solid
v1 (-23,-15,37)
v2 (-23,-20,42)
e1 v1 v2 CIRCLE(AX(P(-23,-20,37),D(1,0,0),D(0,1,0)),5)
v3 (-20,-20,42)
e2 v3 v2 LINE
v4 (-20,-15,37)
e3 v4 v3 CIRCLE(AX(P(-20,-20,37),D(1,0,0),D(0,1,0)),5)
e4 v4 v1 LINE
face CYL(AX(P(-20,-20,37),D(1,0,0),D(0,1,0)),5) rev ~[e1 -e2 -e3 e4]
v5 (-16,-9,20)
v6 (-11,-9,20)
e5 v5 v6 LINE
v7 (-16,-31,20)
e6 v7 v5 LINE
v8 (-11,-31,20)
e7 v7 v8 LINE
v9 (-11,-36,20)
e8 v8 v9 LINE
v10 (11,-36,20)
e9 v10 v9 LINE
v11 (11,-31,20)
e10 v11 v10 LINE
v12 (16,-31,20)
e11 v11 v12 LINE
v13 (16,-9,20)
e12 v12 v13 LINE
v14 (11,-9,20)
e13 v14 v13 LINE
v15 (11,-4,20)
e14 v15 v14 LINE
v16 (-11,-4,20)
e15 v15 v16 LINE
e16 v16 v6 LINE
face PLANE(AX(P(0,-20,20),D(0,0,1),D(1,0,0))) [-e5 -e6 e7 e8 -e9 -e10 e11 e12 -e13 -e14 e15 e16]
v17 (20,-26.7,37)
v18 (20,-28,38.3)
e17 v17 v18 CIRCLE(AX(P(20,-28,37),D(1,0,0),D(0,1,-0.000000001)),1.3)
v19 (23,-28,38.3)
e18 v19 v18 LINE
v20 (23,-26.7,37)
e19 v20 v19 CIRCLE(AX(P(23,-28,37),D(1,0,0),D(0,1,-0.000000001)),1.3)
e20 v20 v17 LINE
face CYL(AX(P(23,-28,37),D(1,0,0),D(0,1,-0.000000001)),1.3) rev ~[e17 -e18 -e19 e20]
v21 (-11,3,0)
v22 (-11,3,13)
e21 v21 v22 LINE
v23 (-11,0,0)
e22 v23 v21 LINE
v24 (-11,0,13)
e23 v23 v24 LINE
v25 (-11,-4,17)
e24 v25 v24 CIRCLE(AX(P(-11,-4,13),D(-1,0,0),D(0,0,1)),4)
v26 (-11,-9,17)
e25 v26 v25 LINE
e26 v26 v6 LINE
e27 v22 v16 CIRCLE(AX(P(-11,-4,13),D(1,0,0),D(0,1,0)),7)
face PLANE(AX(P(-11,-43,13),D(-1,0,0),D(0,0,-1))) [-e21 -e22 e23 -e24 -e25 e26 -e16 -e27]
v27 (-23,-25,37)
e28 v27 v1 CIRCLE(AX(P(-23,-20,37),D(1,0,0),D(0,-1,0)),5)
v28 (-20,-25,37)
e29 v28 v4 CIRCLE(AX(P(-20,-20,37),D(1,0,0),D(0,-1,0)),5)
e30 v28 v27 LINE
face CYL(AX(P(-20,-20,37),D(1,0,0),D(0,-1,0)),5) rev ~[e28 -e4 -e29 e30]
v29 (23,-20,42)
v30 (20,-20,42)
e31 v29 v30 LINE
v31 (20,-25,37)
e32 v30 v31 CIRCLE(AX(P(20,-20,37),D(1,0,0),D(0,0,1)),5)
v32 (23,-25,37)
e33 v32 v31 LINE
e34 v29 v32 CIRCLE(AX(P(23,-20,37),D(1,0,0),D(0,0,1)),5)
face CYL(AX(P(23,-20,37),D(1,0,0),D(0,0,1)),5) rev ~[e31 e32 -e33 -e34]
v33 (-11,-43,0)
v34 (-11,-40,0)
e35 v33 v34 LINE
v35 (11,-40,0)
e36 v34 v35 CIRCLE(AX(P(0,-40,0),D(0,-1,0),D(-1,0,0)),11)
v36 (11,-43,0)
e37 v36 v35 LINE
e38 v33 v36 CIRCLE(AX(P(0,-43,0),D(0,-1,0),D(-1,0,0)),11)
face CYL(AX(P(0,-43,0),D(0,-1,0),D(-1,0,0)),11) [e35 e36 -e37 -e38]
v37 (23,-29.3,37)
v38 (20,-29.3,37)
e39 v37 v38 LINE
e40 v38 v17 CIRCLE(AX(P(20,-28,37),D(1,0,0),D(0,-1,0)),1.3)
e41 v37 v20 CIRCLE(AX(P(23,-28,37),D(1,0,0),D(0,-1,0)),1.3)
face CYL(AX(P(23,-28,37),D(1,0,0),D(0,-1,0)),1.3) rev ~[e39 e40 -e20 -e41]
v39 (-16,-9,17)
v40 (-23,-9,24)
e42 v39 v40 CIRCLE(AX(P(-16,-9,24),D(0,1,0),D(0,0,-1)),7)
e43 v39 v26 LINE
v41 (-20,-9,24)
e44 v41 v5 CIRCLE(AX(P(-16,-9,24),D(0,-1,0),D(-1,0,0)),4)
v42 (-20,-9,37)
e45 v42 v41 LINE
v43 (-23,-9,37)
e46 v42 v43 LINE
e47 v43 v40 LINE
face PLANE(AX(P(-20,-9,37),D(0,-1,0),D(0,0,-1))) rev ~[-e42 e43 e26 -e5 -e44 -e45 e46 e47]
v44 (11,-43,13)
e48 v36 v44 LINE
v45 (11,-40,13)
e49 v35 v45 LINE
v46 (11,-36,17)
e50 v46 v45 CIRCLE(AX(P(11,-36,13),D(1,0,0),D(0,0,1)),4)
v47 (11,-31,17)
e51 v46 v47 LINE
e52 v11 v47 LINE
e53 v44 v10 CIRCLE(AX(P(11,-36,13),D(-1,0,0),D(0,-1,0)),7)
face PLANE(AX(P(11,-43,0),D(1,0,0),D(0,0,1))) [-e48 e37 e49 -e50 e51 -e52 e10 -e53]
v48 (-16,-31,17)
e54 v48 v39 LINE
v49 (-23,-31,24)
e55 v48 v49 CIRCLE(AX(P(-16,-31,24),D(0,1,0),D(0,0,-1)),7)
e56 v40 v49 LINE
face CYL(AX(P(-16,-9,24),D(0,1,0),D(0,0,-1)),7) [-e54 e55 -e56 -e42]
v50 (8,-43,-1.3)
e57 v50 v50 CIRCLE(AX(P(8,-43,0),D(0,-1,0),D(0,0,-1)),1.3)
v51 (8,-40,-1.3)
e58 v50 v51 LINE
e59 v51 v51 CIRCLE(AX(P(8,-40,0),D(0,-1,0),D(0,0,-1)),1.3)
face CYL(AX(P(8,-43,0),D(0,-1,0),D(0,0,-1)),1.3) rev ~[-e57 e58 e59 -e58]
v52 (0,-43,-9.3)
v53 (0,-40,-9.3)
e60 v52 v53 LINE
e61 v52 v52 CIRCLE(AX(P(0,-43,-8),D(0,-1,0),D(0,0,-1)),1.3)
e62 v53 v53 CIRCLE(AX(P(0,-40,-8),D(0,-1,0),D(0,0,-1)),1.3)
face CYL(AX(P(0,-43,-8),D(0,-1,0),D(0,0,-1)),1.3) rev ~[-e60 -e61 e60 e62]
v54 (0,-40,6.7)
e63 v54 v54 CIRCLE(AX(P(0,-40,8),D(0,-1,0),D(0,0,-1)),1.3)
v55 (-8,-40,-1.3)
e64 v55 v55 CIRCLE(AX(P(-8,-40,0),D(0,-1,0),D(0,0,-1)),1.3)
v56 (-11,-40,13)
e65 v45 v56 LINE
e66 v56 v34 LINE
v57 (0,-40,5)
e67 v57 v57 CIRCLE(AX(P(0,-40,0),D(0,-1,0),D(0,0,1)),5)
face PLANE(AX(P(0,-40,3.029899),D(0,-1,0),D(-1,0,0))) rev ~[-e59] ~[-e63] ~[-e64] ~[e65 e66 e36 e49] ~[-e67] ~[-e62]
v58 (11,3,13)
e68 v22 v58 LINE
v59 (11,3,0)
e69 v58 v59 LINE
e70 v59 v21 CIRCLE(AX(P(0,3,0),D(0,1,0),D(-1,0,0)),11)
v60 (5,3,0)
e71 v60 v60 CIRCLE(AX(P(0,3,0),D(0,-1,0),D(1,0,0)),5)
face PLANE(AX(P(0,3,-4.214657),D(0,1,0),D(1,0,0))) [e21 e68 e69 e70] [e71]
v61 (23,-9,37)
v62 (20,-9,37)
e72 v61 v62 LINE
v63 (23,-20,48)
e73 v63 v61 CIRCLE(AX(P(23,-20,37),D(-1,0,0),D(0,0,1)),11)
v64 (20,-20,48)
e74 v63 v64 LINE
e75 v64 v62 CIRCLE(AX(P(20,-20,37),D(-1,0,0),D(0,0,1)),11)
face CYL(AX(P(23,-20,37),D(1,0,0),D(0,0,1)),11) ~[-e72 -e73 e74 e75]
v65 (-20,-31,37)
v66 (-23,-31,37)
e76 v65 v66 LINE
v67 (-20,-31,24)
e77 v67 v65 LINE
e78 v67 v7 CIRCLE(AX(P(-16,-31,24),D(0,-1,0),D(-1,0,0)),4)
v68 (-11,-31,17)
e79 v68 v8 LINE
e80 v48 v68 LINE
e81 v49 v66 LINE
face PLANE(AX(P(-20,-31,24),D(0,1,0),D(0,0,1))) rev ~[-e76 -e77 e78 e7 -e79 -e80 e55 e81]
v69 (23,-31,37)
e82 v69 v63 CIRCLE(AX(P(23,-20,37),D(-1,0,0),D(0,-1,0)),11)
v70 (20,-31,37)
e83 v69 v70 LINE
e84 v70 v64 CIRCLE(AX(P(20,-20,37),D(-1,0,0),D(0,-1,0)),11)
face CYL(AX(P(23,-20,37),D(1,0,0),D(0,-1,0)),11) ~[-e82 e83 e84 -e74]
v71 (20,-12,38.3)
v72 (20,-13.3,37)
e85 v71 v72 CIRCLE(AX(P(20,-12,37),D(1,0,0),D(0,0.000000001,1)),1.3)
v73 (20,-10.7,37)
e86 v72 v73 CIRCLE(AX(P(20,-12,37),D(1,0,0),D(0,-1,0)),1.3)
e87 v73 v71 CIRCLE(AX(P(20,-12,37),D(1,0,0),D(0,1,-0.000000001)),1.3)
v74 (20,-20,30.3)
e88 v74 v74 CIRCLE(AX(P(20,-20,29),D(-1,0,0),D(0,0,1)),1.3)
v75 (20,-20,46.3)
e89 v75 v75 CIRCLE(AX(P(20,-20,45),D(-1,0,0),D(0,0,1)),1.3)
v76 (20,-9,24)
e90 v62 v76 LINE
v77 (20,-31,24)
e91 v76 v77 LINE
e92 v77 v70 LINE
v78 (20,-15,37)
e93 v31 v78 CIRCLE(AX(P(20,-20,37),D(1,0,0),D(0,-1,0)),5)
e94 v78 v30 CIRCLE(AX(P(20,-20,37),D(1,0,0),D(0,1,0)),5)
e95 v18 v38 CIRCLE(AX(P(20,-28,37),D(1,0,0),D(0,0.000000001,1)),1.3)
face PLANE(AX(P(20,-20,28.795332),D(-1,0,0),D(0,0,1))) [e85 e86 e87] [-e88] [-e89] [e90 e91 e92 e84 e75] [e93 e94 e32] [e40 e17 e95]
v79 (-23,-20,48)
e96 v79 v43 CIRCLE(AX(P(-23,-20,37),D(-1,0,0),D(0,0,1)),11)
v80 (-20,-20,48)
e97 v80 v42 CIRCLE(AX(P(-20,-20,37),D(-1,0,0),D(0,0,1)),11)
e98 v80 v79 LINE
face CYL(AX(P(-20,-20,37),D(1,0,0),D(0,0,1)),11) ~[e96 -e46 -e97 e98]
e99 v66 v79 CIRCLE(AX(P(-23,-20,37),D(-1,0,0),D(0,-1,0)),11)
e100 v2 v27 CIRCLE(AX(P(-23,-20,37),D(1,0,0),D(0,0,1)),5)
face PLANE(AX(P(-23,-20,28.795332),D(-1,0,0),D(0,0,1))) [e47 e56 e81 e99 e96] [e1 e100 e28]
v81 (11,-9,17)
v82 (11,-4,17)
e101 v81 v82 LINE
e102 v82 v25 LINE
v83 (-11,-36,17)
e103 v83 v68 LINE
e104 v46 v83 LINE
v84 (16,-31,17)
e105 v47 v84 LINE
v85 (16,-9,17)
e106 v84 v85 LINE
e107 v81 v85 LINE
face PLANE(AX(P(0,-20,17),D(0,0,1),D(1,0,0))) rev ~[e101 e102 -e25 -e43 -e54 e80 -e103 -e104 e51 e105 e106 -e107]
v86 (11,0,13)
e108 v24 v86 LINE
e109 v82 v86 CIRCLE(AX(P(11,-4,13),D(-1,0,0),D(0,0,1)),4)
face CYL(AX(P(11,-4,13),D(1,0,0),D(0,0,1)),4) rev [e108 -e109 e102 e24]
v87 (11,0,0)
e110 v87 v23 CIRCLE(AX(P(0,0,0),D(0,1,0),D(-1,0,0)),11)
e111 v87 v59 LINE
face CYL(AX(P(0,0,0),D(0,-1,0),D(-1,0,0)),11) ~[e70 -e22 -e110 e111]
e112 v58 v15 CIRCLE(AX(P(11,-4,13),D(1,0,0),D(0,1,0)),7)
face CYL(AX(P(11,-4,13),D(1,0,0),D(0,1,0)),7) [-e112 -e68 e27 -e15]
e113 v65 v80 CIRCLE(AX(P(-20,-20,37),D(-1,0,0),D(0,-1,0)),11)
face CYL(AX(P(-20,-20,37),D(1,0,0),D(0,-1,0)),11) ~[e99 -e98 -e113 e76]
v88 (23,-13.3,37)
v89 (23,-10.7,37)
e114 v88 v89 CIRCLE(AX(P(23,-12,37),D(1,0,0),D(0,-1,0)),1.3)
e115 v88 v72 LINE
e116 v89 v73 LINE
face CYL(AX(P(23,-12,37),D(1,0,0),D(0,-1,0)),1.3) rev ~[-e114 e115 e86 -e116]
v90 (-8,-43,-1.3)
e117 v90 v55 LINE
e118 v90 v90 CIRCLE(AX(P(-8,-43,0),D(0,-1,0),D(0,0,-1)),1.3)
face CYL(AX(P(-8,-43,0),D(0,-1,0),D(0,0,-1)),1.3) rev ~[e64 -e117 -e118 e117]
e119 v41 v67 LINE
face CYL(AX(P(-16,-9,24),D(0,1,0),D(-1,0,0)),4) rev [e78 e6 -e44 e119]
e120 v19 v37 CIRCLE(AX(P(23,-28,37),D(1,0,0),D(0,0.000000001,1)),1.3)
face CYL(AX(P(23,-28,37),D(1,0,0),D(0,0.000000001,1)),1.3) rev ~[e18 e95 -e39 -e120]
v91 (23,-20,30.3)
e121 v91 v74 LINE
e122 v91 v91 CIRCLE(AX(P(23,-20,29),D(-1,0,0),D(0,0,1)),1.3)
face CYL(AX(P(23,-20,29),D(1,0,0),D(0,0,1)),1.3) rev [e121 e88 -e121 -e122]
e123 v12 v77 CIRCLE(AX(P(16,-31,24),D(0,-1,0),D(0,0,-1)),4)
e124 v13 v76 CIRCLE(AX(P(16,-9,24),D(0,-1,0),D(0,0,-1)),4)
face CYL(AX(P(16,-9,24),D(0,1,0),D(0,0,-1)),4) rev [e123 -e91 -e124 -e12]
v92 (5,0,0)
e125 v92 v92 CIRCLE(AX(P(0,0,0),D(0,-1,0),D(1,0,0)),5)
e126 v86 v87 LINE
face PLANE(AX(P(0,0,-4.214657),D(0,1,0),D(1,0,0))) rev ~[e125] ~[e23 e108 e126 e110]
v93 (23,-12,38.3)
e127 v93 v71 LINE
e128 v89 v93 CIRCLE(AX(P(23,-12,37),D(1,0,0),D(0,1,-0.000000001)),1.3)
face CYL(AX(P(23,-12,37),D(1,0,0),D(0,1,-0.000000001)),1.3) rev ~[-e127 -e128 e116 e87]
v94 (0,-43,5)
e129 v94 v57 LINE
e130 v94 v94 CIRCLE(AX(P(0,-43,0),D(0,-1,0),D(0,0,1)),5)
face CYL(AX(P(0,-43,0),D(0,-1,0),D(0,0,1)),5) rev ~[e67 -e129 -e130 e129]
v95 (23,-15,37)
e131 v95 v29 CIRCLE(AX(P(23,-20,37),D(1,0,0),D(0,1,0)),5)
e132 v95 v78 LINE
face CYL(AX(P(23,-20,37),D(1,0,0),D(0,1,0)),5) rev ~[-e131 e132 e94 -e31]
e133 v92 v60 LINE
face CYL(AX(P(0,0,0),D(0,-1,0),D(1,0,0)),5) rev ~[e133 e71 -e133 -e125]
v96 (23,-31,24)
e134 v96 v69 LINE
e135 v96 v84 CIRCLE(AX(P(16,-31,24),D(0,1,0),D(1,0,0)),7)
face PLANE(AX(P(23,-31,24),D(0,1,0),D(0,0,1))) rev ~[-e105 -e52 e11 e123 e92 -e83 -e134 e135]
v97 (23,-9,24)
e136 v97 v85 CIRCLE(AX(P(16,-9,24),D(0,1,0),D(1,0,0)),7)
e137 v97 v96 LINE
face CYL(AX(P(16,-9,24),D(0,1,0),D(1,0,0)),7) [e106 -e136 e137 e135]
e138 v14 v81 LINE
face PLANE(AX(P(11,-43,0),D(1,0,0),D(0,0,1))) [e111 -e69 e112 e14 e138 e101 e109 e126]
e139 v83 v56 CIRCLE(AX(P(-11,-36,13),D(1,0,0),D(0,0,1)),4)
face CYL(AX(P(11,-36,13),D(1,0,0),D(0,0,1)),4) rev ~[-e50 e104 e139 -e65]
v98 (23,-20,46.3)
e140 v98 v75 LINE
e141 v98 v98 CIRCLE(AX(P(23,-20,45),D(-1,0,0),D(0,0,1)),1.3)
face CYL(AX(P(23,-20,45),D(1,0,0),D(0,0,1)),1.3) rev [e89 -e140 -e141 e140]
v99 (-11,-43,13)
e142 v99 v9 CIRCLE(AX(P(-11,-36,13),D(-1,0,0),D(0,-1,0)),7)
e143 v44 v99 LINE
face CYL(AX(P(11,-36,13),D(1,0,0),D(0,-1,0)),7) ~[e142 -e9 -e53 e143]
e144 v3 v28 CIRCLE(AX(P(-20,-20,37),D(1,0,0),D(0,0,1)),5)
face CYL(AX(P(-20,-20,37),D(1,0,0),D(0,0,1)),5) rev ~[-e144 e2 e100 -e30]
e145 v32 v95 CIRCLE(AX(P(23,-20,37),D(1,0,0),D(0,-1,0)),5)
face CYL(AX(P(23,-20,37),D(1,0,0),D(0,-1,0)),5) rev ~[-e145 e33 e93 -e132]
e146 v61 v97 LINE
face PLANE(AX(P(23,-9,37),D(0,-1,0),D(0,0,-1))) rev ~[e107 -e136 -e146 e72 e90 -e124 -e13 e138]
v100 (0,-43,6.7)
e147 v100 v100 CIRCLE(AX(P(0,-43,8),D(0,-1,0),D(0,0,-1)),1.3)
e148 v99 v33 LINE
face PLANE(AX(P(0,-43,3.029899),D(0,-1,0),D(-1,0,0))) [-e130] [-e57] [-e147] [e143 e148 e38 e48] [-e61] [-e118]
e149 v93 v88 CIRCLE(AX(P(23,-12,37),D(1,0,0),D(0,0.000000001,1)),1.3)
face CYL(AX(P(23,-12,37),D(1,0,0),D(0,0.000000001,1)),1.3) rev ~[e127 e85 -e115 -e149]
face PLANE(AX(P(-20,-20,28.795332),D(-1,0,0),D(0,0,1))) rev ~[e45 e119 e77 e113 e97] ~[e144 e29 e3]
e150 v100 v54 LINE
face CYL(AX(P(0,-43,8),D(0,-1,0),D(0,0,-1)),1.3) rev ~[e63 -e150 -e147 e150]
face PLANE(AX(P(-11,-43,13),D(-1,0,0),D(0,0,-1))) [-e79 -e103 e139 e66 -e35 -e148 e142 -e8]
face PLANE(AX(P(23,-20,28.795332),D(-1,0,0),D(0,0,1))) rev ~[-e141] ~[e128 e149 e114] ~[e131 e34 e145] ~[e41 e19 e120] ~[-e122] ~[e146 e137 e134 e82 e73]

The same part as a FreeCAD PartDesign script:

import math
import FreeCAD as App
import Part
import Sketcher

doc = App.newDocument("Part")
body = doc.addObject("PartDesign::Body", "Body")

sketch1 = body.newObject("Sketcher::SketchObject", "Sketch")
sketch1.AttachmentSupport = (doc.getObject("XZ_Plane"), [""])
sketch1.MapMode = "FlatFace"
sketch1.addGeometry(Part.ArcOfCircle(Part.Circle(App.Vector(0, 0, 0), App.Vector(0, 0, 1), 11), math.radians(180), math.radians(360)), False)
sketch1.addGeometry(Part.LineSegment(App.Vector(-11, 0, 0), App.Vector(-11, 13, 0)), False)
sketch1.addGeometry(Part.LineSegment(App.Vector(-11, 13, 0), App.Vector(11, 13, 0)), False)
sketch1.addGeometry(Part.LineSegment(App.Vector(11, 13, 0), App.Vector(11, 0, 0)), False)
sketch1.addGeometry(Part.Circle(App.Vector(0, 0, 0), App.Vector(0, 0, 1), 5), False)
sketch1.addConstraint(Sketcher.Constraint("Tangent", 0, 1, 1, 1))
sketch1.addConstraint(Sketcher.Constraint("Coincident", 1, 2, 2, 1))
sketch1.addConstraint(Sketcher.Constraint("Coincident", 2, 2, 3, 1))
sketch1.addConstraint(Sketcher.Constraint("Tangent", 3, 2, 0, 2))
sketch1.addConstraint(Sketcher.Constraint("Vertical", 1))
sketch1.addConstraint(Sketcher.Constraint("Horizontal", 2))
sketch1.addConstraint(Sketcher.Constraint("Vertical", 3))
sketch1.addConstraint(Sketcher.Constraint("Coincident", 0, 3, -1, 1))
sketch1.addConstraint(Sketcher.Constraint("Coincident", 4, 3, -1, 1))
sketch1.addConstraint(Sketcher.Constraint("Diameter", 4, 10.0))
sketch1.addConstraint(Sketcher.Constraint("Radius", 0, 11.0))
sketch1.addConstraint(Sketcher.Constraint("DistanceY", 1, 1, 1, 2, 13.0))
pad1 = body.newObject("PartDesign::Pad", "Pad")
pad1.Profile = sketch1
pad1.Length = 3
pad1.Reversed = True

sketch2 = body.newObject("Sketcher::SketchObject", "Sketch001")
sketch2.AttachmentSupport = (doc.getObject("YZ_Plane"), [""])
sketch2.MapMode = "FlatFace"
sketch2.AttachmentOffset = App.Placement(App.Vector(0, 0, 11), App.Rotation())
sketch2.addGeometry(Part.LineSegment(App.Vector(0, 13, 0), App.Vector(3, 13, 0)), False)
sketch2.addGeometry(Part.ArcOfCircle(Part.Circle(App.Vector(-4, 13, 0), App.Vector(0, 0, 1), 7), math.radians(0), math.radians(90)), False)
sketch2.addGeometry(Part.LineSegment(App.Vector(-4, 20, 0), App.Vector(-36, 20, 0)), False)
sketch2.addGeometry(Part.LineSegment(App.Vector(-36, 20, 0), App.Vector(-36, 17, 0)), False)
sketch2.addGeometry(Part.LineSegment(App.Vector(-36, 17, 0), App.Vector(-4, 17, 0)), False)
sketch2.addGeometry(Part.ArcOfCircle(Part.Circle(App.Vector(-4, 13, 0), App.Vector(0, 0, 1), 4), math.radians(0), math.radians(90)), False)
sketch2.addConstraint(Sketcher.Constraint("Coincident", 0, 2, 1, 1))
sketch2.addConstraint(Sketcher.Constraint("Tangent", 1, 2, 2, 1))
sketch2.addConstraint(Sketcher.Constraint("Coincident", 2, 2, 3, 1))
sketch2.addConstraint(Sketcher.Constraint("Coincident", 3, 2, 4, 1))
sketch2.addConstraint(Sketcher.Constraint("Tangent", 4, 2, 5, 2))
sketch2.addConstraint(Sketcher.Constraint("Coincident", 5, 1, 0, 1))
sketch2.addConstraint(Sketcher.Constraint("Horizontal", 0))
sketch2.addConstraint(Sketcher.Constraint("Horizontal", 2))
sketch2.addConstraint(Sketcher.Constraint("Vertical", 3))
sketch2.addConstraint(Sketcher.Constraint("Horizontal", 4))
sketch2.addConstraint(Sketcher.Constraint("Coincident", 5, 3, 1, 3))
sketch2.addConstraint(Sketcher.Constraint("PointOnObject", 5, 1, -2))
sketch2.addConstraint(Sketcher.Constraint("Horizontal", 5, 3, 0, 2))
sketch2.addConstraint(Sketcher.Constraint("Radius", 1, 7.0))
sketch2.addConstraint(Sketcher.Constraint("Radius", 5, 4.0))
sketch2.addConstraint(Sketcher.Constraint("DistanceX", 2, 2, 2, 1, 32.0))
sketch2.addConstraint(Sketcher.Constraint("DistanceY", -1, 1, 1, 3, 13.0))
pad2 = body.newObject("PartDesign::Pad", "Pad001")
pad2.Profile = sketch2
pad2.Length = 22
pad2.Reversed = True

sketch3 = body.newObject("Sketcher::SketchObject", "Sketch002")
sketch3.AttachmentSupport = (doc.getObject("YZ_Plane"), [""])
sketch3.MapMode = "FlatFace"
sketch3.AttachmentOffset = App.Placement(App.Vector(0, 0, 11), App.Rotation())
sketch3.addGeometry(Part.LineSegment(App.Vector(-36, 17, 0), App.Vector(-36, 20, 0)), False)
sketch3.addGeometry(Part.ArcOfCircle(Part.Circle(App.Vector(-36, 13, 0), App.Vector(0, 0, 1), 7), math.radians(90), math.radians(180)), False)
sketch3.addGeometry(Part.LineSegment(App.Vector(-43, 13, 0), App.Vector(-40, 13, 0)), False)
sketch3.addGeometry(Part.ArcOfCircle(Part.Circle(App.Vector(-36, 13, 0), App.Vector(0, 0, 1), 4), math.radians(90), math.radians(180)), False)
sketch3.addConstraint(Sketcher.Constraint("Coincident", 0, 2, 1, 1))
sketch3.addConstraint(Sketcher.Constraint("Coincident", 1, 2, 2, 1))
sketch3.addConstraint(Sketcher.Constraint("Coincident", 2, 2, 3, 2))
sketch3.addConstraint(Sketcher.Constraint("Coincident", 3, 1, 0, 1))
sketch3.addConstraint(Sketcher.Constraint("Vertical", 0))
sketch3.addConstraint(Sketcher.Constraint("Horizontal", 2))
sketch3.addConstraint(Sketcher.Constraint("Coincident", 3, 3, 1, 3))
sketch3.addConstraint(Sketcher.Constraint("Horizontal", 3, 3, 1, 2))
sketch3.addConstraint(Sketcher.Constraint("Vertical", 3, 3, 0, 2))
sketch3.addConstraint(Sketcher.Constraint("Radius", 1, 7.0))
sketch3.addConstraint(Sketcher.Constraint("Radius", 3, 4.0))
sketch3.addConstraint(Sketcher.Constraint("DistanceX", 1, 3, -1, 1, 36.0))
sketch3.addConstraint(Sketcher.Constraint("DistanceY", -1, 1, 1, 3, 13.0))
pad3 = body.newObject("PartDesign::Pad", "Pad002")
pad3.Profile = sketch3
pad3.Length = 22
pad3.Reversed = True

sketch4 = body.newObject("Sketcher::SketchObject", "Sketch003")
sketch4.AttachmentSupport = (doc.getObject("XZ_Plane"), [""])
sketch4.MapMode = "FlatFace"
sketch4.AttachmentOffset = App.Placement(App.Vector(0, 0, 43), App.Rotation())
sketch4.addGeometry(Part.ArcOfCircle(Part.Circle(App.Vector(0, 0, 0), App.Vector(0, 0, 1), 11), math.radians(180), math.radians(360)), False)
sketch4.addGeometry(Part.LineSegment(App.Vector(11, 0, 0), App.Vector(11, 13, 0)), False)
sketch4.addGeometry(Part.LineSegment(App.Vector(11, 13, 0), App.Vector(-11, 13, 0)), False)
sketch4.addGeometry(Part.LineSegment(App.Vector(-11, 13, 0), App.Vector(-11, 0, 0)), False)
sketch4.addGeometry(Part.Circle(App.Vector(0, 8, 0), App.Vector(0, 0, 1), 1.3), False)
sketch4.addGeometry(Part.Circle(App.Vector(8, 0, 0), App.Vector(0, 0, 1), 1.3), False)
sketch4.addGeometry(Part.Circle(App.Vector(0, 0, 0), App.Vector(0, 0, 1), 5), False)
sketch4.addGeometry(Part.Circle(App.Vector(-8, 0, 0), App.Vector(0, 0, 1), 1.3), False)
sketch4.addGeometry(Part.Circle(App.Vector(0, -8, 0), App.Vector(0, 0, 1), 1.3), False)
sketch4.addConstraint(Sketcher.Constraint("Tangent", 0, 2, 1, 1))
sketch4.addConstraint(Sketcher.Constraint("Coincident", 1, 2, 2, 1))
sketch4.addConstraint(Sketcher.Constraint("Coincident", 2, 2, 3, 1))
sketch4.addConstraint(Sketcher.Constraint("Tangent", 3, 2, 0, 1))
sketch4.addConstraint(Sketcher.Constraint("Vertical", 1))
sketch4.addConstraint(Sketcher.Constraint("Horizontal", 2))
sketch4.addConstraint(Sketcher.Constraint("Vertical", 3))
sketch4.addConstraint(Sketcher.Constraint("Coincident", 0, 3, -1, 1))
sketch4.addConstraint(Sketcher.Constraint("Coincident", 6, 3, -1, 1))
sketch4.addConstraint(Sketcher.Constraint("Equal", 4, 5))
sketch4.addConstraint(Sketcher.Constraint("Equal", 5, 7))
sketch4.addConstraint(Sketcher.Constraint("Equal", 7, 8))
sketch4.addConstraint(Sketcher.Constraint("Symmetric", 5, 3, 7, 3, -1, 1))
sketch4.addConstraint(Sketcher.Constraint("Symmetric", 4, 3, 8, 3, -1, 1))
sketch4.addConstraint(Sketcher.Constraint("PointOnObject", 4, 3, -2))
sketch4.addConstraint(Sketcher.Constraint("PointOnObject", 5, 3, -1))
sketch4.addConstraint(Sketcher.Constraint("Diameter", 6, 10.0))
sketch4.addConstraint(Sketcher.Constraint("Radius", 0, 11.0))
sketch4.addConstraint(Sketcher.Constraint("Diameter", 4, 2.6))
sketch4.addConstraint(Sketcher.Constraint("DistanceY", 1, 1, 1, 2, 13.0))
sketch4.addConstraint(Sketcher.Constraint("DistanceY", -1, 1, 4, 3, 8.0))
sketch4.addConstraint(Sketcher.Constraint("DistanceX", -1, 1, 5, 3, 8.0))
pad4 = body.newObject("PartDesign::Pad", "Pad003")
pad4.Profile = sketch4
pad4.Length = 3
pad4.Reversed = True

sketch5 = body.newObject("Sketcher::SketchObject", "Sketch004")
sketch5.AttachmentSupport = (doc.getObject("XY_Plane"), [""])
sketch5.MapMode = "FlatFace"
sketch5.AttachmentOffset = App.Placement(App.Vector(0, 0, 20), App.Rotation())
sketch5.addGeometry(Part.LineSegment(App.Vector(-16, -9, 0), App.Vector(-16, -31, 0)), False)
sketch5.addGeometry(Part.LineSegment(App.Vector(-16, -31, 0), App.Vector(16, -31, 0)), False)
sketch5.addGeometry(Part.LineSegment(App.Vector(16, -31, 0), App.Vector(16, -9, 0)), False)
sketch5.addGeometry(Part.LineSegment(App.Vector(16, -9, 0), App.Vector(-16, -9, 0)), False)
sketch5.addConstraint(Sketcher.Constraint("Coincident", 0, 2, 1, 1))
sketch5.addConstraint(Sketcher.Constraint("Coincident", 1, 2, 2, 1))
sketch5.addConstraint(Sketcher.Constraint("Coincident", 2, 2, 3, 1))
sketch5.addConstraint(Sketcher.Constraint("Coincident", 3, 2, 0, 1))
sketch5.addConstraint(Sketcher.Constraint("Vertical", 0))
sketch5.addConstraint(Sketcher.Constraint("Horizontal", 1))
sketch5.addConstraint(Sketcher.Constraint("Vertical", 2))
sketch5.addConstraint(Sketcher.Constraint("Horizontal", 3))
sketch5.addConstraint(Sketcher.Constraint("DistanceX", 1, 1, 1, 2, 32.0))
sketch5.addConstraint(Sketcher.Constraint("DistanceY", 0, 2, 0, 1, 22.0))
sketch5.addConstraint(Sketcher.Constraint("DistanceX", 0, 2, -1, 1, 16.0))
sketch5.addConstraint(Sketcher.Constraint("DistanceY", 0, 2, -1, 1, 31.0))
pad5 = body.newObject("PartDesign::Pad", "Pad004")
pad5.Profile = sketch5
pad5.Length = 3
pad5.Reversed = True

sketch6 = body.newObject("Sketcher::SketchObject", "Sketch005")
sketch6.AttachmentSupport = (doc.getObject("XZ_Plane"), [""])
sketch6.MapMode = "FlatFace"
sketch6.AttachmentOffset = App.Placement(App.Vector(0, 0, 9), App.Rotation())
sketch6.addGeometry(Part.LineSegment(App.Vector(-23, 24, 0), App.Vector(-20, 24, 0)), False)
sketch6.addGeometry(Part.ArcOfCircle(Part.Circle(App.Vector(-16, 24, 0), App.Vector(0, 0, 1), 4), math.radians(180), math.radians(270)), False)
sketch6.addGeometry(Part.LineSegment(App.Vector(-16, 20, 0), App.Vector(-16, 17, 0)), False)
sketch6.addGeometry(Part.ArcOfCircle(Part.Circle(App.Vector(-16, 24, 0), App.Vector(0, 0, 1), 7), math.radians(-180), math.radians(-90)), False)
sketch6.addGeometry(Part.LineSegment(App.Vector(20, 24, 0), App.Vector(23, 24, 0)), False)
sketch6.addGeometry(Part.ArcOfCircle(Part.Circle(App.Vector(16, 24, 0), App.Vector(0, 0, 1), 7), math.radians(-90), math.radians(0)), False)
sketch6.addGeometry(Part.LineSegment(App.Vector(16, 17, 0), App.Vector(16, 20, 0)), False)
sketch6.addGeometry(Part.ArcOfCircle(Part.Circle(App.Vector(16, 24, 0), App.Vector(0, 0, 1), 4), math.radians(-90), math.radians(0)), False)
sketch6.addConstraint(Sketcher.Constraint("Coincident", 0, 2, 1, 1))
sketch6.addConstraint(Sketcher.Constraint("Coincident", 1, 2, 2, 1))
sketch6.addConstraint(Sketcher.Constraint("Coincident", 2, 2, 3, 2))
sketch6.addConstraint(Sketcher.Constraint("Coincident", 3, 1, 0, 1))
sketch6.addConstraint(Sketcher.Constraint("Coincident", 4, 2, 5, 2))
sketch6.addConstraint(Sketcher.Constraint("Coincident", 5, 1, 6, 1))
sketch6.addConstraint(Sketcher.Constraint("Coincident", 6, 2, 7, 1))
sketch6.addConstraint(Sketcher.Constraint("Coincident", 7, 2, 4, 1))
sketch6.addConstraint(Sketcher.Constraint("Horizontal", 0))
sketch6.addConstraint(Sketcher.Constraint("Vertical", 2))
sketch6.addConstraint(Sketcher.Constraint("Horizontal", 4))
sketch6.addConstraint(Sketcher.Constraint("Vertical", 6))
sketch6.addConstraint(Sketcher.Constraint("Coincident", 3, 3, 1, 3))
sketch6.addConstraint(Sketcher.Constraint("Coincident", 7, 3, 5, 3))
sketch6.addConstraint(Sketcher.Constraint("Equal", 3, 5))
sketch6.addConstraint(Sketcher.Constraint("Equal", 1, 7))
sketch6.addConstraint(Sketcher.Constraint("Symmetric", 1, 3, 5, 3, -2))
sketch6.addConstraint(Sketcher.Constraint("Horizontal", 7, 3, 0, 2))
sketch6.addConstraint(Sketcher.Constraint("Horizontal", 3, 1, 4, 2))
sketch6.addConstraint(Sketcher.Constraint("Vertical", 3, 3, 1, 2))
sketch6.addConstraint(Sketcher.Constraint("Vertical", 7, 3, 5, 1))
sketch6.addConstraint(Sketcher.Constraint("Radius", 1, 4.0))
sketch6.addConstraint(Sketcher.Constraint("Radius", 3, 7.0))
sketch6.addConstraint(Sketcher.Constraint("DistanceX", 1, 3, -1, 1, 16.0))
sketch6.addConstraint(Sketcher.Constraint("DistanceY", -1, 1, 1, 3, 24.0))
pad6 = body.newObject("PartDesign::Pad", "Pad005")
pad6.Profile = sketch6
pad6.Length = 22

sketch7 = body.newObject("Sketcher::SketchObject", "Sketch006")
sketch7.AttachmentSupport = (doc.getObject("YZ_Plane"), [""])
sketch7.MapMode = "FlatFace"
sketch7.AttachmentOffset = App.Placement(App.Vector(0, 0, 23), App.Rotation())
sketch7.addGeometry(Part.LineSegment(App.Vector(-9, 37, 0), App.Vector(-9, 24, 0)), False)
sketch7.addGeometry(Part.LineSegment(App.Vector(-9, 24, 0), App.Vector(-31, 24, 0)), False)
sketch7.addGeometry(Part.LineSegment(App.Vector(-31, 24, 0), App.Vector(-31, 37, 0)), False)
sketch7.addGeometry(Part.ArcOfCircle(Part.Circle(App.Vector(-20, 37, 0), App.Vector(0, 0, 1), 11), math.radians(90), math.radians(180)), False)
sketch7.addGeometry(Part.ArcOfCircle(Part.Circle(App.Vector(-20, 37, 0), App.Vector(0, 0, 1), 11), math.radians(0), math.radians(90)), False)
sketch7.addGeometry(Part.ArcOfCircle(Part.Circle(App.Vector(-12, 37, 0), App.Vector(0, 0, 1), 1.3), math.radians(180), math.radians(360)), False)
sketch7.addGeometry(Part.ArcOfCircle(Part.Circle(App.Vector(-12, 37, 0), App.Vector(0, 0, 1), 1.3), math.radians(0), math.radians(90)), False)
sketch7.addGeometry(Part.ArcOfCircle(Part.Circle(App.Vector(-12, 37, 0), App.Vector(0, 0, 1), 1.3), math.radians(90), math.radians(180)), False)
sketch7.addGeometry(Part.Circle(App.Vector(-20, 29, 0), App.Vector(0, 0, 1), 1.3), False)
sketch7.addGeometry(Part.ArcOfCircle(Part.Circle(App.Vector(-20, 37, 0), App.Vector(0, 0, 1), 5), math.radians(180), math.radians(360)), False)
sketch7.addGeometry(Part.ArcOfCircle(Part.Circle(App.Vector(-20, 37, 0), App.Vector(0, 0, 1), 5), math.radians(0), math.radians(90)), False)
sketch7.addGeometry(Part.ArcOfCircle(Part.Circle(App.Vector(-20, 37, 0), App.Vector(0, 0, 1), 5), math.radians(90), math.radians(180)), False)
sketch7.addGeometry(Part.ArcOfCircle(Part.Circle(App.Vector(-28, 37, 0), App.Vector(0, 0, 1), 1.3), math.radians(180), math.radians(360)), False)
sketch7.addGeometry(Part.ArcOfCircle(Part.Circle(App.Vector(-28, 37, 0), App.Vector(0, 0, 1), 1.3), math.radians(0), math.radians(90)), False)
sketch7.addGeometry(Part.ArcOfCircle(Part.Circle(App.Vector(-28, 37, 0), App.Vector(0, 0, 1), 1.3), math.radians(90), math.radians(180)), False)
sketch7.addGeometry(Part.Circle(App.Vector(-20, 45, 0), App.Vector(0, 0, 1), 1.3), False)
sketch7.addConstraint(Sketcher.Constraint("Coincident", 0, 2, 1, 1))
sketch7.addConstraint(Sketcher.Constraint("Coincident", 1, 2, 2, 1))
sketch7.addConstraint(Sketcher.Constraint("Tangent", 2, 2, 3, 2))
sketch7.addConstraint(Sketcher.Constraint("Tangent", 3, 1, 4, 2))
sketch7.addConstraint(Sketcher.Constraint("Tangent", 4, 1, 0, 1))
sketch7.addConstraint(Sketcher.Constraint("Tangent", 5, 2, 6, 1))
sketch7.addConstraint(Sketcher.Constraint("Tangent", 6, 2, 7, 1))
sketch7.addConstraint(Sketcher.Constraint("Tangent", 7, 2, 5, 1))
sketch7.addConstraint(Sketcher.Constraint("Tangent", 9, 2, 10, 1))
sketch7.addConstraint(Sketcher.Constraint("Tangent", 10, 2, 11, 1))
sketch7.addConstraint(Sketcher.Constraint("Tangent", 11, 2, 9, 1))
sketch7.addConstraint(Sketcher.Constraint("Tangent", 12, 2, 13, 1))
sketch7.addConstraint(Sketcher.Constraint("Tangent", 13, 2, 14, 1))
sketch7.addConstraint(Sketcher.Constraint("Tangent", 14, 2, 12, 1))
sketch7.addConstraint(Sketcher.Constraint("Vertical", 0))
sketch7.addConstraint(Sketcher.Constraint("Horizontal", 1))
sketch7.addConstraint(Sketcher.Constraint("Vertical", 2))
sketch7.addConstraint(Sketcher.Constraint("Coincident", 9, 3, 3, 3))
sketch7.addConstraint(Sketcher.Constraint("Equal", 3, 4))
sketch7.addConstraint(Sketcher.Constraint("Equal", 7, 8))
sketch7.addConstraint(Sketcher.Constraint("Equal", 8, 12))
sketch7.addConstraint(Sketcher.Constraint("Equal", 14, 15))
sketch7.addConstraint(Sketcher.Constraint("Horizontal", 4, 3, 5, 3))
sketch7.addConstraint(Sketcher.Constraint("Horizontal", 11, 3, 12, 3))
sketch7.addConstraint(Sketcher.Constraint("Horizontal", 4, 1, 5, 2))
sketch7.addConstraint(Sketcher.Constraint("Horizontal", 5, 2, 7, 2))
sketch7.addConstraint(Sketcher.Constraint("Horizontal", 7, 2, 9, 2))
sketch7.addConstraint(Sketcher.Constraint("Horizontal", 9, 2, 11, 2))
sketch7.addConstraint(Sketcher.Constraint("Horizontal", 11, 2, 12, 2))
sketch7.addConstraint(Sketcher.Constraint("Horizontal", 12, 2, 14, 2))
sketch7.addConstraint(Sketcher.Constraint("Vertical", 4, 3, 8, 3))
sketch7.addConstraint(Sketcher.Constraint("Vertical", 11, 3, 15, 3))
sketch7.addConstraint(Sketcher.Constraint("Vertical", 15, 3, 3, 1))
sketch7.addConstraint(Sketcher.Constraint("Vertical", 7, 3, 6, 2))
sketch7.addConstraint(Sketcher.Constraint("Vertical", 3, 1, 10, 2))
sketch7.addConstraint(Sketcher.Constraint("Vertical", 14, 3, 13, 2))
sketch7.addConstraint(Sketcher.Constraint("Radius", 3, 11.0))
sketch7.addConstraint(Sketcher.Constraint("Radius", 9, 5.0))
sketch7.addConstraint(Sketcher.Constraint("Diameter", 8, 2.6))
sketch7.addConstraint(Sketcher.Constraint("DistanceY", 0, 2, 0, 1, 13.0))
sketch7.addConstraint(Sketcher.Constraint("DistanceX", 3, 3, -1, 1, 20.0))
sketch7.addConstraint(Sketcher.Constraint("DistanceY", -1, 1, 3, 3, 37.0))
sketch7.addConstraint(Sketcher.Constraint("DistanceX", 5, 3, -1, 1, 12.0))
sketch7.addConstraint(Sketcher.Constraint("DistanceY", -1, 1, 8, 3, 29.0))
sketch7.addConstraint(Sketcher.Constraint("DistanceX", 12, 3, -1, 1, 28.0))
sketch7.addConstraint(Sketcher.Constraint("DistanceY", -1, 1, 15, 3, 45.0))
pad7 = body.newObject("PartDesign::Pad", "Pad006")
pad7.Profile = sketch7
pad7.Length = 3
pad7.Reversed = True

sketch8 = body.newObject("Sketcher::SketchObject", "Sketch007")
sketch8.AttachmentSupport = (doc.getObject("YZ_Plane"), [""])
sketch8.MapMode = "FlatFace"
sketch8.AttachmentOffset = App.Placement(App.Vector(0, 0, -20), App.Rotation())
sketch8.addGeometry(Part.LineSegment(App.Vector(-31, 24, 0), App.Vector(-31, 37, 0)), False)
sketch8.addGeometry(Part.ArcOfCircle(Part.Circle(App.Vector(-20, 37, 0), App.Vector(0, 0, 1), 11), math.radians(90), math.radians(180)), False)
sketch8.addGeometry(Part.ArcOfCircle(Part.Circle(App.Vector(-20, 37, 0), App.Vector(0, 0, 1), 11), math.radians(0), math.radians(90)), False)
sketch8.addGeometry(Part.LineSegment(App.Vector(-9, 37, 0), App.Vector(-9, 24, 0)), False)
sketch8.addGeometry(Part.LineSegment(App.Vector(-9, 24, 0), App.Vector(-31, 24, 0)), False)
sketch8.addGeometry(Part.ArcOfCircle(Part.Circle(App.Vector(-20, 37, 0), App.Vector(0, 0, 1), 5), math.radians(180), math.radians(360)), False)
sketch8.addGeometry(Part.ArcOfCircle(Part.Circle(App.Vector(-20, 37, 0), App.Vector(0, 0, 1), 5), math.radians(0), math.radians(90)), False)
sketch8.addGeometry(Part.ArcOfCircle(Part.Circle(App.Vector(-20, 37, 0), App.Vector(0, 0, 1), 5), math.radians(90), math.radians(180)), False)
sketch8.addConstraint(Sketcher.Constraint("Tangent", 0, 2, 1, 2))
sketch8.addConstraint(Sketcher.Constraint("Tangent", 1, 1, 2, 2))
sketch8.addConstraint(Sketcher.Constraint("Tangent", 2, 1, 3, 1))
sketch8.addConstraint(Sketcher.Constraint("Coincident", 3, 2, 4, 1))
sketch8.addConstraint(Sketcher.Constraint("Coincident", 4, 2, 0, 1))
sketch8.addConstraint(Sketcher.Constraint("Tangent", 5, 2, 6, 1))
sketch8.addConstraint(Sketcher.Constraint("Tangent", 6, 2, 7, 1))
sketch8.addConstraint(Sketcher.Constraint("Tangent", 7, 2, 5, 1))
sketch8.addConstraint(Sketcher.Constraint("Vertical", 0))
sketch8.addConstraint(Sketcher.Constraint("Vertical", 3))
sketch8.addConstraint(Sketcher.Constraint("Horizontal", 4))
sketch8.addConstraint(Sketcher.Constraint("Coincident", 5, 3, 1, 3))
sketch8.addConstraint(Sketcher.Constraint("Equal", 1, 2))
sketch8.addConstraint(Sketcher.Constraint("Horizontal", 2, 1, 5, 2))
sketch8.addConstraint(Sketcher.Constraint("Horizontal", 5, 2, 7, 2))
sketch8.addConstraint(Sketcher.Constraint("Vertical", 7, 3, 1, 1))
sketch8.addConstraint(Sketcher.Constraint("Vertical", 1, 1, 6, 2))
sketch8.addConstraint(Sketcher.Constraint("Radius", 1, 11.0))
sketch8.addConstraint(Sketcher.Constraint("Radius", 5, 5.0))
sketch8.addConstraint(Sketcher.Constraint("DistanceY", 0, 1, 0, 2, 13.0))
sketch8.addConstraint(Sketcher.Constraint("DistanceX", 1, 3, -1, 1, 20.0))
sketch8.addConstraint(Sketcher.Constraint("DistanceY", -1, 1, 1, 3, 37.0))
pad8 = body.newObject("PartDesign::Pad", "Pad007")
pad8.Profile = sketch8
pad8.Length = 3
pad8.Reversed = True

doc.recompute()
